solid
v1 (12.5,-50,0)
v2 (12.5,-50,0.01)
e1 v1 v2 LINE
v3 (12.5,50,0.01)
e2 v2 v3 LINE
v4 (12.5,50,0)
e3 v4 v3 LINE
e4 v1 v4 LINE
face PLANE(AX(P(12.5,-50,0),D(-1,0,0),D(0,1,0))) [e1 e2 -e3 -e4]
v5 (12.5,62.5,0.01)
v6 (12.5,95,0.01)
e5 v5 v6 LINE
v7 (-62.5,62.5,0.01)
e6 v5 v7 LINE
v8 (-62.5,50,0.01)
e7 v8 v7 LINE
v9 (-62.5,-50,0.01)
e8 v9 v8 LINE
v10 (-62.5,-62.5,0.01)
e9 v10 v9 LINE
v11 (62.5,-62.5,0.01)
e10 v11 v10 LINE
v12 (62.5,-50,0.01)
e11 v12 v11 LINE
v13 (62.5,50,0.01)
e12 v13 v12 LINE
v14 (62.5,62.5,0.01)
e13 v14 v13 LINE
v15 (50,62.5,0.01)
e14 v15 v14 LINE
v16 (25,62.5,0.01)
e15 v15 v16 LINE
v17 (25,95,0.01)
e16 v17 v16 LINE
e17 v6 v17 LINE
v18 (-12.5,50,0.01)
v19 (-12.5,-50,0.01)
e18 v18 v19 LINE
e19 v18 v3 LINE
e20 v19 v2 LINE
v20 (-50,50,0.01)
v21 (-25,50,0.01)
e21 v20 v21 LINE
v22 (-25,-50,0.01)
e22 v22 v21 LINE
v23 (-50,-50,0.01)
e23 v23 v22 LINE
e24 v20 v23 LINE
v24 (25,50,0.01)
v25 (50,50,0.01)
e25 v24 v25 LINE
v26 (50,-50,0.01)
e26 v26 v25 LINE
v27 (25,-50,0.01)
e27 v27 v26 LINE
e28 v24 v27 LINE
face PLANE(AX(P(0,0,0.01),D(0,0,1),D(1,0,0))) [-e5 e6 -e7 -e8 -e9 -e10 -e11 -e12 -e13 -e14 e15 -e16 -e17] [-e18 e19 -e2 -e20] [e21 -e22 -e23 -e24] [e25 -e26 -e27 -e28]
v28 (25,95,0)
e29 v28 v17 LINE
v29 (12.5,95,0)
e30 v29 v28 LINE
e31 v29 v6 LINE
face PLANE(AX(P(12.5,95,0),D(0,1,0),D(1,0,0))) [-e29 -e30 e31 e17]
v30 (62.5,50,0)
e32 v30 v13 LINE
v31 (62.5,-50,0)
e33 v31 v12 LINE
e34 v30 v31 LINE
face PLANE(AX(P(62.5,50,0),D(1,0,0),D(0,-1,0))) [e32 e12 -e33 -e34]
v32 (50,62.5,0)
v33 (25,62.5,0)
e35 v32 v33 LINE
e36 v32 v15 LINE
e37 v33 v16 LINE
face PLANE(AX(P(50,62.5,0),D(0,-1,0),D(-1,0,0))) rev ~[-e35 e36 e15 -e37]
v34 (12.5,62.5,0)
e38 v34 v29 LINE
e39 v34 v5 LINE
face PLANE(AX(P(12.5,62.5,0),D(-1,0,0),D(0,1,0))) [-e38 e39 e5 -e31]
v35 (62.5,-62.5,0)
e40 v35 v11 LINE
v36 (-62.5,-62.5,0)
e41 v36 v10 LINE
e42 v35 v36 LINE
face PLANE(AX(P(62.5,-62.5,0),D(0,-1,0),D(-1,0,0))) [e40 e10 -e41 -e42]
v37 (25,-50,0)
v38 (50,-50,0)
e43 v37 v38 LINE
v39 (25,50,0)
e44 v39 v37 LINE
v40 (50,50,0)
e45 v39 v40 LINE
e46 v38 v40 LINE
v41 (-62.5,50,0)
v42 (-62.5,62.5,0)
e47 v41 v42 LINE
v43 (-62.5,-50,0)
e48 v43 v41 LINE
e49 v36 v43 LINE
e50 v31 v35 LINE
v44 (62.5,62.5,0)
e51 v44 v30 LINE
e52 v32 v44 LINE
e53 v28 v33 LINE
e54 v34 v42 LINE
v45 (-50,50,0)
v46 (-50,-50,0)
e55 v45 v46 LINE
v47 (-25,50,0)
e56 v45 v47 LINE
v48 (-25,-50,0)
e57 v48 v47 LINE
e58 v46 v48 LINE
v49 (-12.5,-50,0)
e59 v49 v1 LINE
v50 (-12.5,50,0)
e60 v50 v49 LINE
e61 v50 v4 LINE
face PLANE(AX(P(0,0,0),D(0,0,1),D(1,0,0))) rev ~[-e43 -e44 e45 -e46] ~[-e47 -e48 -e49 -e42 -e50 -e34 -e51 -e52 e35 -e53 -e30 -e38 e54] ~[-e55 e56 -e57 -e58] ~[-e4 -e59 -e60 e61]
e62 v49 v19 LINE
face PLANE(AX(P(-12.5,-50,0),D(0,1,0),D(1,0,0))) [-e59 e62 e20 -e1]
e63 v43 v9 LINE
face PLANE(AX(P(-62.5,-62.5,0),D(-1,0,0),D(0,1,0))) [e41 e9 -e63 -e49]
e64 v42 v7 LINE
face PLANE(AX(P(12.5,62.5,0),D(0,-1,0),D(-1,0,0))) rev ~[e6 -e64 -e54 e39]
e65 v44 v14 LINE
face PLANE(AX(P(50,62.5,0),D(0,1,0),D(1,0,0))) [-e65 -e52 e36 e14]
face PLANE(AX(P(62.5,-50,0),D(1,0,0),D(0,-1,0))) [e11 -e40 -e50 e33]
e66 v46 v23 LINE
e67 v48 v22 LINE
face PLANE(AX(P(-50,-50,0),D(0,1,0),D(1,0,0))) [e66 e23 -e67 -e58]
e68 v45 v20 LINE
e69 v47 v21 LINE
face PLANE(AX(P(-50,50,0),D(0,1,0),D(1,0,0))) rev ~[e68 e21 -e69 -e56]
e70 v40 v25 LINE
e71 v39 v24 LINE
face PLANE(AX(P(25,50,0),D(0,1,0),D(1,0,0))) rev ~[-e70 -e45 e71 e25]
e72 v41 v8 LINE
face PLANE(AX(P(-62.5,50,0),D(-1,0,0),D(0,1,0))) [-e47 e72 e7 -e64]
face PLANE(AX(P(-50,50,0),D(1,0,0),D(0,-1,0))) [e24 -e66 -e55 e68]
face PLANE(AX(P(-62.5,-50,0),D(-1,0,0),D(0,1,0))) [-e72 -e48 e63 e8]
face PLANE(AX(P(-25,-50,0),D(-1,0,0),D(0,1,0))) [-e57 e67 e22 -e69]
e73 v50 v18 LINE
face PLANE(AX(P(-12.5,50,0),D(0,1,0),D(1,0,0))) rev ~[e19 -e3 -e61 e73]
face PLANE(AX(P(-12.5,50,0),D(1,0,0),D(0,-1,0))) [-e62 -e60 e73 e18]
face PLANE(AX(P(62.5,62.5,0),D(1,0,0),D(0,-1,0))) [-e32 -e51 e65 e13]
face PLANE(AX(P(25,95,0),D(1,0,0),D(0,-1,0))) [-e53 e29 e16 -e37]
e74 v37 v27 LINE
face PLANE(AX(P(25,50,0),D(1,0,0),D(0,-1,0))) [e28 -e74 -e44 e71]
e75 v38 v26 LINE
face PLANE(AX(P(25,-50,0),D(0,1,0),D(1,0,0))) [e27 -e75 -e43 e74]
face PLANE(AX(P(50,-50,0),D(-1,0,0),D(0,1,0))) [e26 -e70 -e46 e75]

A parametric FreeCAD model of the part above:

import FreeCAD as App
import Part
import Sketcher
from FreeCAD import Vector


def add_polygon(sketch, points):
    """Adds a closed chain of lines whose ends are joined by coincident constraints."""
    first, n = sketch.GeometryCount, len(points)
    for a, b in zip(points, points[1:] + points[:1]):
        sketch.addGeometry(Part.LineSegment(App.Vector(*a, 0), App.Vector(*b, 0)), False)
    for i in range(n):
        sketch.addConstraint(Sketcher.Constraint("Coincident", first + i, 2, first + (i + 1) % n, 1))

doc = App.newDocument("Part")
params = doc.addObject("Spreadsheet::Sheet", "Params")
for row, (alias, value) in enumerate([
    ("sketch1_width", "125 mm"),
    ("sketch1_width2", "25 mm"),
    ("sketch1_width3", "12.5 mm"),
    ("sketch1_height", "32.5 mm"),
    ("pad1_length", "0.01 mm"),
], start=1):
    params.set(f"A{row}", alias)
    params.set(f"B{row}", "=" + value)
    params.setAlias(f"B{row}", alias)

body = doc.addObject("PartDesign::Body", "Body")

# Sketch on XY plane
sketch1 = body.newObject("Sketcher::SketchObject", "Sketch")
sketch1.AttachmentSupport = (doc.getObject("XY_Plane"), [""])
sketch1.MapMode = "FlatFace"
add_polygon(sketch1, [(-62, -62), (62, -62), (62, 62), (25, 62), (25, 95), (12, 95), (12, 62), (-62, 62)])  # lines 0-7
add_polygon(sketch1, [(-25, 50), (-25, -50), (-50, -50), (-50, 50)])  # lines 8-11
add_polygon(sketch1, [(12, 50), (12, -50), (-12, -50), (-12, 50)])  # lines 12-15
add_polygon(sketch1, [(50, 50), (50, -50), (25, -50), (25, 50)])  # lines 16-19
sketch1.addConstraint([
    Sketcher.Constraint("Horizontal", 0),
    Sketcher.Constraint("Vertical", 1),
    Sketcher.Constraint("Horizontal", 2),
    Sketcher.Constraint("Vertical", 3),
    Sketcher.Constraint("Horizontal", 4),
    Sketcher.Constraint("Vertical", 5),
    Sketcher.Constraint("Horizontal", 6),
    Sketcher.Constraint("Vertical", 7),
    Sketcher.Constraint("Vertical", 8),
    Sketcher.Constraint("Horizontal", 9),
    Sketcher.Constraint("Vertical", 10),
    Sketcher.Constraint("Horizontal", 11),
    Sketcher.Constraint("Vertical", 12),
    Sketcher.Constraint("Horizontal", 13),
    Sketcher.Constraint("Vertical", 14),
    Sketcher.Constraint("Horizontal", 15),
    Sketcher.Constraint("Vertical", 16),
    Sketcher.Constraint("Horizontal", 17),
    Sketcher.Constraint("Vertical", 18),
    Sketcher.Constraint("Horizontal", 19),
    Sketcher.Constraint("Symmetric", 0, 2, 6, 2, -1, 1),
    Sketcher.Constraint("Symmetric", 12, 2, 14, 2, -1, 1),
    Sketcher.Constraint("Symmetric", 10, 2, 16, 2, -1, 1),
    Sketcher.Constraint("Symmetric", 8, 2, 18, 2, -1, 1),
    Sketcher.Constraint("Horizontal", 2, 2, 5, 2),
    Sketcher.Constraint("Horizontal", 9, 2, 12, 2),
    Sketcher.Constraint("Horizontal", 11, 2, 14, 2),
    Sketcher.Constraint("Vertical", 5, 2, 12, 2),
    Sketcher.Constraint("Vertical", 3, 2, 17, 2),
    Sketcher.Constraint("Equal", 11, 13),
    Sketcher.Constraint("Equal", 0, 1),
    Sketcher.Constraint("DistanceX", 0, 1, 0, 2, 125.0),
    Sketcher.Constraint("DistanceX", 9, 2, 9, 1, 25.0),
    Sketcher.Constraint("DistanceX", 4, 2, 4, 1, 12.5),
    Sketcher.Constraint("DistanceY", 7, 2, 8, 2, 12.5),
    Sketcher.Constraint("DistanceY", 3, 1, 3, 2, 32.5),
])
sketch1.setExpression("Constraints[51]", "Params.sketch1_width")
sketch1.setExpression("Constraints[52]", "Params.sketch1_width2")
sketch1.setExpression("Constraints[53]", "Params.sketch1_width3")
sketch1.setExpression("Constraints[55]", "Params.sketch1_height")
pad1 = body.newObject("PartDesign::Pad", "Pad")
pad1.Profile = sketch1
pad1.setExpression("Length", "Params.pad1_length")

doc.recompute()
